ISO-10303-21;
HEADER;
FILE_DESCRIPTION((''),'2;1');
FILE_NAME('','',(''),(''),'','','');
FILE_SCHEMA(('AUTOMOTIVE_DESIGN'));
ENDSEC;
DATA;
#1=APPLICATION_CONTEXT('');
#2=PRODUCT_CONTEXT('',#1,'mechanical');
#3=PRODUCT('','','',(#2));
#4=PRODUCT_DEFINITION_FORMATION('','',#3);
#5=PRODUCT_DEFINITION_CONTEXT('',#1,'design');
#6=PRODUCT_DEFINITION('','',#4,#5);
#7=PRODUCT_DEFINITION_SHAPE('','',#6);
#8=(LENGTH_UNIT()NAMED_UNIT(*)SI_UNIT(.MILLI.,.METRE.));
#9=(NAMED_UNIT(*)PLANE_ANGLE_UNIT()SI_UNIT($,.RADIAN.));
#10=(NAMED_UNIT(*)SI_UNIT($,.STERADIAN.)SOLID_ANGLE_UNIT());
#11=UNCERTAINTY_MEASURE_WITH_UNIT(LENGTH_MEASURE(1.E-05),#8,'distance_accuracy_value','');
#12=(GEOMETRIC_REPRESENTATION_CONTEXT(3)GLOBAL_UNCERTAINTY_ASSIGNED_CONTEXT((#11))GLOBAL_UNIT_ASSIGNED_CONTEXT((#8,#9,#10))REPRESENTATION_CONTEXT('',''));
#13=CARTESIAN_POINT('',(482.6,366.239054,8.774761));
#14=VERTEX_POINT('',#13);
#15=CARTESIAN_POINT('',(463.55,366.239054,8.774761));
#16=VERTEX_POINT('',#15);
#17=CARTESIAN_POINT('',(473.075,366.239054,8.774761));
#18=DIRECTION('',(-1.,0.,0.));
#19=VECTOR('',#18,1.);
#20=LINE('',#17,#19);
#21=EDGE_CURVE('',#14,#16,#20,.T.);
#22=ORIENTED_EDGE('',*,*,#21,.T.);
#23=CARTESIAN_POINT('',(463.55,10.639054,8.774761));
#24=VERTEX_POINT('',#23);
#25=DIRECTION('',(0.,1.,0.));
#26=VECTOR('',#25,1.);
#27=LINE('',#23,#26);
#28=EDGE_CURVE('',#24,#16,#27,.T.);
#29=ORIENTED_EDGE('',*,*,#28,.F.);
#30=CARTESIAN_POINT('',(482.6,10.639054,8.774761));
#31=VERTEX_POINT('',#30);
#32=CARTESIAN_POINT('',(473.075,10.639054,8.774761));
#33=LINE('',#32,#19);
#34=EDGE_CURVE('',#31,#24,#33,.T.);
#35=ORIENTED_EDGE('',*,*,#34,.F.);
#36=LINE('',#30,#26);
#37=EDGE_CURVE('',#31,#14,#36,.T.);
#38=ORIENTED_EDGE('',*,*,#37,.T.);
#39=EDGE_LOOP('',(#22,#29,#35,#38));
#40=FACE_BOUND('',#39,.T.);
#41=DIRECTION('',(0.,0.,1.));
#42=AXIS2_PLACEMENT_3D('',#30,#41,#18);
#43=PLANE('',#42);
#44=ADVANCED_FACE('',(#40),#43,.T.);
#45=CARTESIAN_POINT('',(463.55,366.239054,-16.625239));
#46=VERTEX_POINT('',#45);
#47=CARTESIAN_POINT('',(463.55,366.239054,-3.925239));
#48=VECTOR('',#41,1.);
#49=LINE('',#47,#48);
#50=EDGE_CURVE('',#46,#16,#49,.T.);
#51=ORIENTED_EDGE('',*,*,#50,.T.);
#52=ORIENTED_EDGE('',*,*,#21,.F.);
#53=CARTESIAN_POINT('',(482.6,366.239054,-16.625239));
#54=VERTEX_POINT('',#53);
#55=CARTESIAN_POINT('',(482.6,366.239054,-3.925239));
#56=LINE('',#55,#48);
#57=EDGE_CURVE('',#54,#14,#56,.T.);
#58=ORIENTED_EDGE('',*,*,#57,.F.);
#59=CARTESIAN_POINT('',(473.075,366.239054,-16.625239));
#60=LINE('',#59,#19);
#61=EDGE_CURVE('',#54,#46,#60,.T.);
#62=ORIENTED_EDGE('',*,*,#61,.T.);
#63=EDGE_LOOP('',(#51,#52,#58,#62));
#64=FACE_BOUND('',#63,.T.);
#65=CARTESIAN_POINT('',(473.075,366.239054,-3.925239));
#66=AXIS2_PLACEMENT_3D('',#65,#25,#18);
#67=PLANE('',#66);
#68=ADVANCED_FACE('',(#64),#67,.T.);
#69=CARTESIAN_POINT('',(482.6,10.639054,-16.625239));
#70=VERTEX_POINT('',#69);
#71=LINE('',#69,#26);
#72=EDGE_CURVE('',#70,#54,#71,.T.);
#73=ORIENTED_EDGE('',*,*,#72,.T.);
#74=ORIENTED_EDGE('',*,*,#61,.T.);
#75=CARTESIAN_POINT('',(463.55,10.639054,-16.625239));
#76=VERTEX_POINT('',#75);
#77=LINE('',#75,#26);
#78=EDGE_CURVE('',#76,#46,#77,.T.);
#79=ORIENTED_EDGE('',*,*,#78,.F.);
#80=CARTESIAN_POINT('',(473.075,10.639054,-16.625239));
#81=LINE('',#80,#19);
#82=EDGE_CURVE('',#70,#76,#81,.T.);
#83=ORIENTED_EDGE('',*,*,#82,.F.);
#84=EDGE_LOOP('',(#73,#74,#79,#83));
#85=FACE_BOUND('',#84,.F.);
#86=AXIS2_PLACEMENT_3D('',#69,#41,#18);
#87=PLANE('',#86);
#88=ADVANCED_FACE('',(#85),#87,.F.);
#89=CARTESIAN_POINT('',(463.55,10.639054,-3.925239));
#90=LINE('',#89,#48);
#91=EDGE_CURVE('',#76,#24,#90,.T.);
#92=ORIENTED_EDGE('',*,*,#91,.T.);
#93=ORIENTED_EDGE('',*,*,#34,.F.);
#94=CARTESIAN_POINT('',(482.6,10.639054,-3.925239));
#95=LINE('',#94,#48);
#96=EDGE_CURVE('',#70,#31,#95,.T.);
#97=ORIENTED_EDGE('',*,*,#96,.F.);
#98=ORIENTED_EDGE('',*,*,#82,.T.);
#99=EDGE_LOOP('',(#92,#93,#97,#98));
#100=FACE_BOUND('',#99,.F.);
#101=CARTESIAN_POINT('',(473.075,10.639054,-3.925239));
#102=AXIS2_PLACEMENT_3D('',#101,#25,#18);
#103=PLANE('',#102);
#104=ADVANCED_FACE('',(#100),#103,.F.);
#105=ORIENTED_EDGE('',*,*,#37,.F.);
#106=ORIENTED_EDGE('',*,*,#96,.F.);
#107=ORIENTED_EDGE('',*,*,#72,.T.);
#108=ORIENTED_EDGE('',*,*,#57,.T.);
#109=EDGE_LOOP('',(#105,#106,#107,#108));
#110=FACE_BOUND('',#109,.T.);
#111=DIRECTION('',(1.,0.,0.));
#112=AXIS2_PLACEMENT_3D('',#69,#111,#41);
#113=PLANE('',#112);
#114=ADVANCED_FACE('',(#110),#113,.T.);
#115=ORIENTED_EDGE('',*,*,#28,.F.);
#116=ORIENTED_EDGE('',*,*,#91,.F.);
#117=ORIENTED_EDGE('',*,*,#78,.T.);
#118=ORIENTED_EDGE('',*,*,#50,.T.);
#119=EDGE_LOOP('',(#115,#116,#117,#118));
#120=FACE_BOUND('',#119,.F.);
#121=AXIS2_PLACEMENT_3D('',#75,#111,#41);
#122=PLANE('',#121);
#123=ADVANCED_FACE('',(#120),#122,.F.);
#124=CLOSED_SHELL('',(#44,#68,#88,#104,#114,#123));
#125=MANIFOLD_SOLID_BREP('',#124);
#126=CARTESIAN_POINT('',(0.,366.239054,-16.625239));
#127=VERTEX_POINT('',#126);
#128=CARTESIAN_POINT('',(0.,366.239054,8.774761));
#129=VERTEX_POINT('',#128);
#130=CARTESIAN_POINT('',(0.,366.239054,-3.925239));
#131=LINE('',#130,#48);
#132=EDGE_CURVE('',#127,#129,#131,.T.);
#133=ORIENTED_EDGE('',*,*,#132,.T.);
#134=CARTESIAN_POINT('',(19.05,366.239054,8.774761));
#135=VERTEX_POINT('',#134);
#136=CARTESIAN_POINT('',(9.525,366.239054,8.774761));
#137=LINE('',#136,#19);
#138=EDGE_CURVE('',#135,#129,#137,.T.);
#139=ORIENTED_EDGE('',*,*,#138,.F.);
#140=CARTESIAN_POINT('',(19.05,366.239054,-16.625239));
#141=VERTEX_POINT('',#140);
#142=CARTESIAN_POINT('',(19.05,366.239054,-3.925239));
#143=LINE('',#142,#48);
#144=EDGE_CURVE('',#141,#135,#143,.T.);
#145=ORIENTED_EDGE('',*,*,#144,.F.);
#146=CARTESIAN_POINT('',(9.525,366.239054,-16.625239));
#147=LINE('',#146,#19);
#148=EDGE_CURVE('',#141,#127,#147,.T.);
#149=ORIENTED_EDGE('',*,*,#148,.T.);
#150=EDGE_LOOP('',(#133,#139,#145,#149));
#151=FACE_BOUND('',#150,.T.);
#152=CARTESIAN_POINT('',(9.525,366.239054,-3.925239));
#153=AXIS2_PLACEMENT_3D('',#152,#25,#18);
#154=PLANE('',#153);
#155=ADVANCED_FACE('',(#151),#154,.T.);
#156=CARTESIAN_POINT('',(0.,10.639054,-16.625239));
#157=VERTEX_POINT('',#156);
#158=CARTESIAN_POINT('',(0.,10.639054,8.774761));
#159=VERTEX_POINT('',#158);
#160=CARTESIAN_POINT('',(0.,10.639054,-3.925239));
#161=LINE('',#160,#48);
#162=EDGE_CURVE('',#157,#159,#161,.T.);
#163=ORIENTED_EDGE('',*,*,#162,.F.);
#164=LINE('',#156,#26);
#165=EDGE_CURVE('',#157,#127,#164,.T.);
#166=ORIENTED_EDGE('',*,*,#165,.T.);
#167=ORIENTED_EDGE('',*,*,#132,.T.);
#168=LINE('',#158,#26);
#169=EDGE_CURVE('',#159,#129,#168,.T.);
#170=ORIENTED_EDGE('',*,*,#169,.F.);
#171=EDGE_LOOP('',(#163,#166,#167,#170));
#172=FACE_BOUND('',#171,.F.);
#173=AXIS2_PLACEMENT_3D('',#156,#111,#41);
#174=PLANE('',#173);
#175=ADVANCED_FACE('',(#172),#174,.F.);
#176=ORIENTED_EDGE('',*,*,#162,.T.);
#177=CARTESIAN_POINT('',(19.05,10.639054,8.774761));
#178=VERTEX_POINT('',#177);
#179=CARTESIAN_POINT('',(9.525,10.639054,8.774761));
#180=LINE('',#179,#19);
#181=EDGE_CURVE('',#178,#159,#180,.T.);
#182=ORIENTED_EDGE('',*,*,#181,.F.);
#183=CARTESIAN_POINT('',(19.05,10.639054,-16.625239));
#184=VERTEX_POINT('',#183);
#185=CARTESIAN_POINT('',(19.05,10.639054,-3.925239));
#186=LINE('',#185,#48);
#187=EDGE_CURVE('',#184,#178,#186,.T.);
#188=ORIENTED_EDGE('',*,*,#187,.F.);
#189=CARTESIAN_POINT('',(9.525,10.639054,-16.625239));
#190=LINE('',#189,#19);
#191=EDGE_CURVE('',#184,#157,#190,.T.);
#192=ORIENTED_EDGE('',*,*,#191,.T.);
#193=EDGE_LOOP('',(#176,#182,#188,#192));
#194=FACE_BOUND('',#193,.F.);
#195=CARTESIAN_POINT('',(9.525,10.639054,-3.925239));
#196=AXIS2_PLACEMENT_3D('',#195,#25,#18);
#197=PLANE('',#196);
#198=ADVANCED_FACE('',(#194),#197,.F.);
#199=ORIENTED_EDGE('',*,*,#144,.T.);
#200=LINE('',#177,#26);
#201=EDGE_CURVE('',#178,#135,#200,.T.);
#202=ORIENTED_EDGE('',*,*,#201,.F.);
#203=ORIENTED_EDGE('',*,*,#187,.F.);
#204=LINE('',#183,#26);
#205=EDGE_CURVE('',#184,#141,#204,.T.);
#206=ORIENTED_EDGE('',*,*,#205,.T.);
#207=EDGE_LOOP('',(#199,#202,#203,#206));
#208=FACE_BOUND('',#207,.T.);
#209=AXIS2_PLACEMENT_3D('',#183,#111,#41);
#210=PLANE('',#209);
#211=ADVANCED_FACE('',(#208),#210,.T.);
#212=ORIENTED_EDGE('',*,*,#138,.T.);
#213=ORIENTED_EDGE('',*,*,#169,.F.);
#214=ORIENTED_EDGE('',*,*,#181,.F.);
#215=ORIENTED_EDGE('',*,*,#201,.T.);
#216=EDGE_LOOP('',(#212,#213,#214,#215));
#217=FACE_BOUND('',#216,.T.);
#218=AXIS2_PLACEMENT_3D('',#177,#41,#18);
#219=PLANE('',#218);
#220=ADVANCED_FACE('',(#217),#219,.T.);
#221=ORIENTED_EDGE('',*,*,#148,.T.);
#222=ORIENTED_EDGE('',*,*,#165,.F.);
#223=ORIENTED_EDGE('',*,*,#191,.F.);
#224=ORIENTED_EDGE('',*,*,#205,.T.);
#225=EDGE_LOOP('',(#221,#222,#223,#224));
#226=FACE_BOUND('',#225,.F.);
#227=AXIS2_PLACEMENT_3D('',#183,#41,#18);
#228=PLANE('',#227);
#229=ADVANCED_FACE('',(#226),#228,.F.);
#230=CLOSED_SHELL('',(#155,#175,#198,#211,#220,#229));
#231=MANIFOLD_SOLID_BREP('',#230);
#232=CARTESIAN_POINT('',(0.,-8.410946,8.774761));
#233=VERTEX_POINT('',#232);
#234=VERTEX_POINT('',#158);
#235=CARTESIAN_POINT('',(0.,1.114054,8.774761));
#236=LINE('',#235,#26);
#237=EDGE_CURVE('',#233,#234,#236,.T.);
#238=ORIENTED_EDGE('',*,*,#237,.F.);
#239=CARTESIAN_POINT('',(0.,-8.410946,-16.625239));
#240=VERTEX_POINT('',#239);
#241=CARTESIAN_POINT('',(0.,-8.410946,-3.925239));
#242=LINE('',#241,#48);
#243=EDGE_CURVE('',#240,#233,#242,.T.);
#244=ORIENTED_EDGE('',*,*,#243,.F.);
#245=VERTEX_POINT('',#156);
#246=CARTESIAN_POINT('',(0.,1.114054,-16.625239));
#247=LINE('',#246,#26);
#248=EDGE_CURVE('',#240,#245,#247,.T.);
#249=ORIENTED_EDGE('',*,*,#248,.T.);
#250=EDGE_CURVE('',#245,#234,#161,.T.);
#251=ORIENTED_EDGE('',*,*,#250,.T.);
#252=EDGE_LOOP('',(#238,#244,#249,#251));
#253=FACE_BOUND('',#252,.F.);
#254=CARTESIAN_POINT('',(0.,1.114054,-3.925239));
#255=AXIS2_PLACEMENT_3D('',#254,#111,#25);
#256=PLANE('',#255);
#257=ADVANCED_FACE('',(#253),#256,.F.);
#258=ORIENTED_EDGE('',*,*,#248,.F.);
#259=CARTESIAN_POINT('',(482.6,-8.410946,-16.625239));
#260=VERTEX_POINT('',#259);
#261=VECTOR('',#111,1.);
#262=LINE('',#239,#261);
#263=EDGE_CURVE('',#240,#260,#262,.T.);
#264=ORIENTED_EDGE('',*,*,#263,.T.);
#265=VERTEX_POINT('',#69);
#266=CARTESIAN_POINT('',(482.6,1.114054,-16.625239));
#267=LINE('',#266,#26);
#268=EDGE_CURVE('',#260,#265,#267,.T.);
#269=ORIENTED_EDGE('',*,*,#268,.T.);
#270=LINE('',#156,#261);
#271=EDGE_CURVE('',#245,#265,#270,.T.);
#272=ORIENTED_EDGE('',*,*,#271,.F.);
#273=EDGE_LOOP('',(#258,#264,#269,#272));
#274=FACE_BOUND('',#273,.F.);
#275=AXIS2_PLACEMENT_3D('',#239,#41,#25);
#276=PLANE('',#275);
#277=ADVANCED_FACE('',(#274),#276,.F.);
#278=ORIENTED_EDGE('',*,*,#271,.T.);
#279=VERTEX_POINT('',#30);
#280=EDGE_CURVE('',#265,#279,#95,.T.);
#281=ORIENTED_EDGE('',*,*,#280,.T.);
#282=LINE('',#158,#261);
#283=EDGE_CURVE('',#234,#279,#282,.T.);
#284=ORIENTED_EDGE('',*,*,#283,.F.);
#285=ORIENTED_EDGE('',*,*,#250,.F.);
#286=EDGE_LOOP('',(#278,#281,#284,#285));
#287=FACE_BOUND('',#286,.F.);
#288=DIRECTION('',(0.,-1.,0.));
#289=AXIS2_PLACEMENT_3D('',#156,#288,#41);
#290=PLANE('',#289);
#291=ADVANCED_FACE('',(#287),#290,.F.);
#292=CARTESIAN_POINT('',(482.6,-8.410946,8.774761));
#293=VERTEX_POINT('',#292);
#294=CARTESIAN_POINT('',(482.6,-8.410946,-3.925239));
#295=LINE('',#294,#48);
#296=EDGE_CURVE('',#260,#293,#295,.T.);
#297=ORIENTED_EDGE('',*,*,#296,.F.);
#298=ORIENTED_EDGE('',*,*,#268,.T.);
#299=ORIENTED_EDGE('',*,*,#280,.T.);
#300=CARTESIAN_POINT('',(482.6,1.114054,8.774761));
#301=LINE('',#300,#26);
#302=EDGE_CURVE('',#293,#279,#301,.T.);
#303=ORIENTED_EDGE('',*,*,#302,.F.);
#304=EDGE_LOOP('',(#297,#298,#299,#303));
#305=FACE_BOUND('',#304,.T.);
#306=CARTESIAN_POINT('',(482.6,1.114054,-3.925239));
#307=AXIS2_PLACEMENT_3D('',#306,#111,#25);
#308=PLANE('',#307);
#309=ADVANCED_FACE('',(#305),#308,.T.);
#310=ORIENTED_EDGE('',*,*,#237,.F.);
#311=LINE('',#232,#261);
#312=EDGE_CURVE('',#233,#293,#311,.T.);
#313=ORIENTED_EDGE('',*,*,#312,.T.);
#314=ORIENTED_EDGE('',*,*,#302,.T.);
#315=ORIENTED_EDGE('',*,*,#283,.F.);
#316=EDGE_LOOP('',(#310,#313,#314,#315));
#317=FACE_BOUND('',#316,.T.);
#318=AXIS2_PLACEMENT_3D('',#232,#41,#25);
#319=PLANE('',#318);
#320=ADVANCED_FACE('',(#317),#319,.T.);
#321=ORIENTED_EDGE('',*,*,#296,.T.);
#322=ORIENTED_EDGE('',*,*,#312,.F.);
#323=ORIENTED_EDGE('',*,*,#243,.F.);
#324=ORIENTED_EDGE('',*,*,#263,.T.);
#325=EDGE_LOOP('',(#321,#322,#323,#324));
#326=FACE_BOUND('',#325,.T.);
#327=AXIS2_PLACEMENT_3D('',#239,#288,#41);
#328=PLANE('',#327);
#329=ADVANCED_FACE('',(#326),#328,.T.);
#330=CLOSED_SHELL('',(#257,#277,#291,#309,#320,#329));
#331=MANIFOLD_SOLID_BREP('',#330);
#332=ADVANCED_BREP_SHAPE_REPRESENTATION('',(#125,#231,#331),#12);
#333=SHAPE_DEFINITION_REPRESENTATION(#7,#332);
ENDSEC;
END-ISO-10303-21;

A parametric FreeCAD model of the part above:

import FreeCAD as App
import Part
import Sketcher
Q = App.Units.Quantity

doc = App.newDocument("Part")
body = doc.addObject("PartDesign::Body", "Body")

sketch1 = body.newObject("Sketcher::SketchObject", "Sketch")
sketch1.AttachmentSupport = (doc.getObject("YZ_Plane"), [""])
sketch1.MapMode = "FlatFace"
sketch1.addGeometry([
    Part.LineSegment(App.Vector(-8.410946, 8.774761, 0), App.Vector(-8.410946, -16.625239, 0)),
    Part.LineSegment(App.Vector(-8.410946, -16.625239, 0), App.Vector(10.639054, -16.625239, 0)),
    Part.LineSegment(App.Vector(10.639054, -16.625239, 0), App.Vector(10.639054, 8.774761, 0)),
    Part.LineSegment(App.Vector(10.639054, 8.774761, 0), App.Vector(-8.410946, 8.774761, 0)),
], False)
sketch1.addConstraint([
    Sketcher.Constraint("Coincident", 0, 2, 1, 1),
    Sketcher.Constraint("Coincident", 1, 2, 2, 1),
    Sketcher.Constraint("Coincident", 2, 2, 3, 1),
    Sketcher.Constraint("Coincident", 3, 2, 0, 1),
    Sketcher.Constraint("Vertical", 0),
    Sketcher.Constraint("Horizontal", 1),
    Sketcher.Constraint("Vertical", 2),
    Sketcher.Constraint("Horizontal", 3),
    Sketcher.Constraint("DistanceY", 0, 2, 0, 1, Q("1 in")),
    Sketcher.Constraint("DistanceX", 1, 1, 1, 2, Q("0.75 in")),
    Sketcher.Constraint("DistanceY", 0, 2, -1, 1, 16.625239),
    Sketcher.Constraint("DistanceX", 0, 2, -1, 1, 8.410946),
])
pad1 = body.newObject("PartDesign::Pad", "Pad")
pad1.Profile = sketch1
pad1.Length = Q("19 in")
body2 = doc.addObject("PartDesign::Body", "Body001")

sketch2 = body2.newObject("Sketcher::SketchObject", "Sketch001")
sketch2.AttachmentSupport = (doc.getObject("XZ_Plane001"), [""])
sketch2.MapMode = "FlatFace"
sketch2.AttachmentOffset = App.Placement(App.Vector(0, 0, -10.639054), App.Rotation())
sketch2.addGeometry([
    Part.LineSegment(App.Vector(19.05, 8.774761, 0), App.Vector(19.05, -16.625239, 0)),
    Part.LineSegment(App.Vector(19.05, -16.625239, 0), App.Vector(0, -16.625239, 0)),
    Part.LineSegment(App.Vector(0, -16.625239, 0), App.Vector(0, 8.774761, 0)),
    Part.LineSegment(App.Vector(0, 8.774761, 0), App.Vector(19.05, 8.774761, 0)),
], False)
sketch2.addConstraint([
    Sketcher.Constraint("Coincident", 0, 2, 1, 1),
    Sketcher.Constraint("Coincident", 1, 2, 2, 1),
    Sketcher.Constraint("Coincident", 2, 2, 3, 1),
    Sketcher.Constraint("Coincident", 3, 2, 0, 1),
    Sketcher.Constraint("Vertical", 0),
    Sketcher.Constraint("Horizontal", 1),
    Sketcher.Constraint("Vertical", 2),
    Sketcher.Constraint("Horizontal", 3),
    Sketcher.Constraint("PointOnObject", 1, 2, -2),
    Sketcher.Constraint("DistanceY", 0, 2, 0, 1, Q("1 in")),
    Sketcher.Constraint("DistanceX", 1, 2, 1, 1, Q("0.75 in")),
    Sketcher.Constraint("DistanceY", 0, 2, -1, 1, 16.625239),
])
pad2 = body2.newObject("PartDesign::Pad", "Pad001")
pad2.Profile = sketch2
pad2.Length = Q("14 in")
pad2.Reversed = True
body3 = doc.addObject("PartDesign::Body", "Body002")

sketch3 = body3.newObject("Sketcher::SketchObject", "Sketch002")
sketch3.AttachmentSupport = (doc.getObject("XZ_Plane002"), [""])
sketch3.MapMode = "FlatFace"
sketch3.AttachmentOffset = App.Placement(App.Vector(0, 0, -10.639054), App.Rotation())
sketch3.addGeometry([
    Part.LineSegment(App.Vector(482.6, 8.774761, 0), App.Vector(482.6, -16.625239, 0)),
    Part.LineSegment(App.Vector(482.6, -16.625239, 0), App.Vector(463.55, -16.625239, 0)),
    Part.LineSegment(App.Vector(463.55, -16.625239, 0), App.Vector(463.55, 8.774761, 0)),
    Part.LineSegment(App.Vector(463.55, 8.774761, 0), App.Vector(482.6, 8.774761, 0)),
], False)
sketch3.addConstraint([
    Sketcher.Constraint("Coincident", 0, 2, 1, 1),
    Sketcher.Constraint("Coincident", 1, 2, 2, 1),
    Sketcher.Constraint("Coincident", 2, 2, 3, 1),
    Sketcher.Constraint("Coincident", 3, 2, 0, 1),
    Sketcher.Constraint("Vertical", 0),
    Sketcher.Constraint("Horizontal", 1),
    Sketcher.Constraint("Vertical", 2),
    Sketcher.Constraint("Horizontal", 3),
    Sketcher.Constraint("DistanceY", 0, 2, 0, 1, Q("1 in")),
    Sketcher.Constraint("DistanceX", -1, 1, 0, 2, Q("19 in")),
    Sketcher.Constraint("DistanceX", 1, 2, 1, 1, Q("0.75 in")),
    Sketcher.Constraint("DistanceY", 0, 2, -1, 1, 16.625239),
])
pad3 = body3.newObject("PartDesign::Pad", "Pad002")
pad3.Profile = sketch3
pad3.Length = Q("14 in")
pad3.Reversed = True

doc.recompute()
